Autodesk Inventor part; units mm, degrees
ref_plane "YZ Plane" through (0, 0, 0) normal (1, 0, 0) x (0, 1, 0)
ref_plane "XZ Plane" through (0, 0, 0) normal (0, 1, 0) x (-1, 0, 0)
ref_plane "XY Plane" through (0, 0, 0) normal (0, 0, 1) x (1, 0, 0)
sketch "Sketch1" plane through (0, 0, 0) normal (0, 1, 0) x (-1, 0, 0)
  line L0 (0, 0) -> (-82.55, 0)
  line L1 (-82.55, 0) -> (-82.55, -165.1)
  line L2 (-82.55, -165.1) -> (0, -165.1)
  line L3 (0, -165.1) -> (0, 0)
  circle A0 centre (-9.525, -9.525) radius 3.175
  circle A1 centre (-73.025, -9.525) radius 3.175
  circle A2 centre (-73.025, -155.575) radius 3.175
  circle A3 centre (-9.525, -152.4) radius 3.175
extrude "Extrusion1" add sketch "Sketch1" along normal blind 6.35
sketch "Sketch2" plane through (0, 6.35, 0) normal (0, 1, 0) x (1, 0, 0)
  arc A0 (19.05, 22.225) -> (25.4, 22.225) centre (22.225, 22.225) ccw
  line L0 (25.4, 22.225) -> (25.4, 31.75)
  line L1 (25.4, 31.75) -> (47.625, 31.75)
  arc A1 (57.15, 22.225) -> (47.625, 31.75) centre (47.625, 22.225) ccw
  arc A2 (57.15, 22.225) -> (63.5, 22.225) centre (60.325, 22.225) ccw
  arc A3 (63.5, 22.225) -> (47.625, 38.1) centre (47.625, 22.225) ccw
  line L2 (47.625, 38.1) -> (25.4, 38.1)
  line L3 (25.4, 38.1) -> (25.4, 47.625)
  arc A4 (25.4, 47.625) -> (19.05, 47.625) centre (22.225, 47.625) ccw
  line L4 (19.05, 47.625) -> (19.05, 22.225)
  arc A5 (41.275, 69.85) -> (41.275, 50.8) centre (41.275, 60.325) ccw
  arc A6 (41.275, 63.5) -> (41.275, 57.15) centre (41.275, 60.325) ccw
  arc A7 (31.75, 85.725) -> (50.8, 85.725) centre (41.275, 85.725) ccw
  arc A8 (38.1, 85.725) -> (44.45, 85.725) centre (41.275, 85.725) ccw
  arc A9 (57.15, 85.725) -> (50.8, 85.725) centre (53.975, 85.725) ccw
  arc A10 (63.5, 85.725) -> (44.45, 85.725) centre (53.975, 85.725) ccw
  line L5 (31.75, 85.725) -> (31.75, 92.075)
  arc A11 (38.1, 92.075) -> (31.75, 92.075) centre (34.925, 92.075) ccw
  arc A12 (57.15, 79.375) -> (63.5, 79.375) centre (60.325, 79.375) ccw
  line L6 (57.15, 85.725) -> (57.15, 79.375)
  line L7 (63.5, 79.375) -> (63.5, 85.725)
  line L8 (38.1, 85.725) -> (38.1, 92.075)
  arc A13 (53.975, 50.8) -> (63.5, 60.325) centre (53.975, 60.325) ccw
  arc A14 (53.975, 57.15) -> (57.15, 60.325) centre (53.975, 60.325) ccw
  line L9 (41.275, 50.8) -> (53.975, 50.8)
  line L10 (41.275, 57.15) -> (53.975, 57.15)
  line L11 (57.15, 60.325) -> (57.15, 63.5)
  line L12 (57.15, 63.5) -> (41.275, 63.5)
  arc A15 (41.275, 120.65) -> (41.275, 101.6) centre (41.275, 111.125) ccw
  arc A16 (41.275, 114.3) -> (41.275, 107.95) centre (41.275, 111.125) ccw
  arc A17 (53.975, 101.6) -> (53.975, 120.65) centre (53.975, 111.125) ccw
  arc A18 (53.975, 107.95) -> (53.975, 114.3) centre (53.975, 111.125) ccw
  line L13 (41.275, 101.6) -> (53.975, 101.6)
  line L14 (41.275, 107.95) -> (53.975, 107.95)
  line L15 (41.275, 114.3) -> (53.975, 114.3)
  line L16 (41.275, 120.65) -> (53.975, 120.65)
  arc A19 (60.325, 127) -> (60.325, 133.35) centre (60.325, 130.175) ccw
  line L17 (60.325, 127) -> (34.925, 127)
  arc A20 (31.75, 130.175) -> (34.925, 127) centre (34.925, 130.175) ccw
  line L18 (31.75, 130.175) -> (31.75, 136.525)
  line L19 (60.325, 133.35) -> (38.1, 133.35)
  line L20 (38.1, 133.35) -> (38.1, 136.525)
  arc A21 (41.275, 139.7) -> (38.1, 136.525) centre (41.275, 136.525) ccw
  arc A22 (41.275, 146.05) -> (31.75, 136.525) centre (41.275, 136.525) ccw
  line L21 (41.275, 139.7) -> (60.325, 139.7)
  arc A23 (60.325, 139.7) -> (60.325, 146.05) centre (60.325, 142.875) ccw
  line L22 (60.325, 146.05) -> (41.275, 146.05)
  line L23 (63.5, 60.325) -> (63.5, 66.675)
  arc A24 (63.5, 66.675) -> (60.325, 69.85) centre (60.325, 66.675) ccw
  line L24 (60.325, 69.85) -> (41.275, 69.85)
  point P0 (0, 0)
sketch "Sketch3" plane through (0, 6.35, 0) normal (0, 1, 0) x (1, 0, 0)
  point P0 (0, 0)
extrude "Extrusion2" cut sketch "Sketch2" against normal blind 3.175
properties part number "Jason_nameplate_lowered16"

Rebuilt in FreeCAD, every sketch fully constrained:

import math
import FreeCAD as App
import Part
import Sketcher
from FreeCAD import Vector
Q = App.Units.Quantity


def add_polygon(sketch, points):
    """Adds a closed chain of lines whose ends are joined by coincident constraints."""
    first, n = sketch.GeometryCount, len(points)
    for a, b in zip(points, points[1:] + points[:1]):
        sketch.addGeometry(Part.LineSegment(App.Vector(*a, 0), App.Vector(*b, 0)), False)
    for i in range(n):
        sketch.addConstraint(Sketcher.Constraint("Coincident", first + i, 2, first + (i + 1) % n, 1))

doc = App.newDocument("Part")
params = doc.addObject("Spreadsheet::Sheet", "Params")
for row, (alias, value) in enumerate([
    ("sketch1_diameter", "0.25 in"),
    ("sketch1_height", "6.5 in"),
    ("sketch1_width", "3.25 in"),
    ("pad1_length", "0.25 in"),
    ("sketch2_width", "1 in"),
    ("pocket1_length", "0.125 in"),
], start=1):
    params.set(f"A{row}", alias)
    params.set(f"B{row}", "=" + value)
    params.setAlias(f"B{row}", alias)

body = doc.addObject("PartDesign::Body", "Body")

sketch1 = doc.addObject("Sketcher::SketchObject", "Sketch")
body.addObject(sketch1)
sketch1.AttachmentSupport = (doc.XZ_Plane, [""])
sketch1.MapMode = "FlatFace"
add_polygon(sketch1, [(0, -165.1), (0, 0), (82.5, 0), (82.5, -165.1)])
sketch1.addGeometry(Part.Circle(Vector(73, -155.6, 0), Vector(0, 0, 1), 3.2), False)
sketch1.addGeometry(Part.Circle(Vector(9.5, -152.4, 0), Vector(0, 0, 1), 3.2), False)
sketch1.addGeometry(Part.Circle(Vector(73, -9.5, 0), Vector(0, 0, 1), 3.2), False)
sketch1.addGeometry(Part.Circle(Vector(9.5, -9.5, 0), Vector(0, 0, 1), 3.2), False)
sketch1.addConstraint([
    Sketcher.Constraint("Vertical", 0),
    Sketcher.Constraint("Horizontal", 1),
    Sketcher.Constraint("Vertical", 2),
    Sketcher.Constraint("Horizontal", 3),
    Sketcher.Constraint("Coincident", 0, 2, -1, 1),
    Sketcher.Constraint("Equal", 4, 5),
    Sketcher.Constraint("Equal", 5, 6),
    Sketcher.Constraint("Equal", 6, 7),
    Sketcher.Constraint("Horizontal", 6, 3, 7, 3),
    Sketcher.Constraint("Vertical", 4, 3, 6, 3),
    Sketcher.Constraint("Vertical", 5, 3, 7, 3),
    Sketcher.Constraint("Diameter", 4, Q("0.25 in")),
    Sketcher.Constraint("DistanceY", 0, 1, 0, 2, Q("6.5 in")),
    Sketcher.Constraint("DistanceY", 5, 3, -1, 1, Q("6 in")),
    Sketcher.Constraint("DistanceX", 1, 1, 1, 2, Q("3.25 in")),
    Sketcher.Constraint("DistanceX", 5, 3, 4, 3, Q("2.5 in")),
    Sketcher.Constraint("DistanceY", 4, 3, 6, 3, Q("5.75 in")),
    Sketcher.Constraint("DistanceX", -1, 1, 4, 3, Q("2.875 in")),
    Sketcher.Constraint("DistanceY", 4, 3, -1, 1, Q("6.125 in")),
])
sketch1.setExpression("Constraints[15]", "Params.sketch1_diameter")
sketch1.setExpression("Constraints[16]", "Params.sketch1_height")
sketch1.setExpression("Constraints[18]", "Params.sketch1_width")
pad1 = doc.addObject("PartDesign::Pad", "Pad")
body.addObject(pad1)
pad1.Profile = sketch1
pad1.setExpression("Length", "Params.pad1_length")
pad1.Reversed = True

sketch2 = doc.addObject("Sketcher::SketchObject", "Sketch001")
body.addObject(sketch2)
sketch2.AttachmentSupport = (doc.XZ_Plane, [""])
sketch2.MapMode = "FlatFace"
sketch2.AttachmentOffset = App.Placement(Vector(0, 0, -0.25 * 25.4), App.Rotation())
sketch2.addGeometry([
    Part.LineSegment(Vector(19.1, -47.6, 0), Vector(19.1, -22.2, 0)),
    Part.ArcOfCircle(Part.Circle(Vector(22.2, -22.2, 0), Vector(0, 0, 1), 3.2), math.radians(0), math.radians(180)),
    Part.LineSegment(Vector(25.4, -22.2, 0), Vector(25.4, -31.8, 0)),
    Part.LineSegment(Vector(25.4, -31.8, 0), Vector(47.6, -31.8, 0)),
    Part.ArcOfCircle(Part.Circle(Vector(47.6, -22.2, 0), Vector(0, 0, 1), 9.5), math.radians(-90), math.radians(0)),
    Part.ArcOfCircle(Part.Circle(Vector(60.3, -22.2, 0), Vector(0, 0, 1), 3.2), math.radians(0), math.radians(180)),
    Part.ArcOfCircle(Part.Circle(Vector(47.6, -22.2, 0), Vector(0, 0, 1), 15.9), math.radians(-90), math.radians(0)),
    Part.LineSegment(Vector(47.6, -38.1, 0), Vector(25.4, -38.1, 0)),
    Part.LineSegment(Vector(25.4, -38.1, 0), Vector(25.4, -47.6, 0)),
    Part.ArcOfCircle(Part.Circle(Vector(22.2, -47.6, 0), Vector(0, 0, 1), 3.2), math.radians(180), math.radians(360)),
    Part.LineSegment(Vector(60.3, -69.8, 0), Vector(41.3, -69.8, 0)),
    Part.ArcOfCircle(Part.Circle(Vector(41.3, -60.3, 0), Vector(0, 0, 1), 9.5), math.radians(90), math.radians(270)),
    Part.LineSegment(Vector(41.3, -50.8, 0), Vector(54, -50.8, 0)),
    Part.ArcOfCircle(Part.Circle(Vector(54, -60.3, 0), Vector(0, 0, 1), 9.5), math.radians(0), math.radians(90)),
    Part.LineSegment(Vector(63.5, -60.3, 0), Vector(63.5, -66.7, 0)),
    Part.ArcOfCircle(Part.Circle(Vector(60.3, -66.7, 0), Vector(0, 0, 1), 3.2), math.radians(-90), math.radians(0)),
    Part.ArcOfCircle(Part.Circle(Vector(41.3, -60.3, 0), Vector(0, 0, 1), 3.2), math.radians(90), math.radians(270)),
    Part.LineSegment(Vector(41.3, -63.5, 0), Vector(57.1, -63.5, 0)),
    Part.LineSegment(Vector(57.1, -63.5, 0), Vector(57.1, -60.3, 0)),
    Part.ArcOfCircle(Part.Circle(Vector(54, -60.3, 0), Vector(0, 0, 1), 3.2), math.radians(0), math.radians(90)),
    Part.LineSegment(Vector(54, -57.1, 0), Vector(41.3, -57.1, 0)),
    Part.LineSegment(Vector(31.8, -92.1, 0), Vector(31.8, -85.7, 0)),
    Part.ArcOfCircle(Part.Circle(Vector(41.3, -85.7, 0), Vector(0, 0, 1), 9.5), math.radians(0), math.radians(180)),
    Part.ArcOfCircle(Part.Circle(Vector(54, -85.7, 0), Vector(0, 0, 1), 3.2), math.radians(180), math.radians(360)),
    Part.LineSegment(Vector(57.1, -85.7, 0), Vector(57.1, -79.4, 0)),
    Part.ArcOfCircle(Part.Circle(Vector(60.3, -79.4, 0), Vector(0, 0, 1), 3.2), math.radians(0), math.radians(180)),
    Part.LineSegment(Vector(63.5, -79.4, 0), Vector(63.5, -85.7, 0)),
    Part.ArcOfCircle(Part.Circle(Vector(54, -85.7, 0), Vector(0, 0, 1), 9.5), math.radians(180), math.radians(360)),
    Part.ArcOfCircle(Part.Circle(Vector(41.3, -85.7, 0), Vector(0, 0, 1), 3.2), math.radians(0), math.radians(180)),
    Part.LineSegment(Vector(38.1, -85.7, 0), Vector(38.1, -92.1, 0)),
    Part.ArcOfCircle(Part.Circle(Vector(34.9, -92.1, 0), Vector(0, 0, 1), 3.2), math.radians(180), math.radians(360)),
    Part.LineSegment(Vector(54, -120.7, 0), Vector(41.3, -120.7, 0)),
    Part.ArcOfCircle(Part.Circle(Vector(41.3, -111.1, 0), Vector(0, 0, 1), 9.5), math.radians(90), math.radians(270)),
    Part.LineSegment(Vector(41.3, -101.6, 0), Vector(54, -101.6, 0)),
    Part.ArcOfCircle(Part.Circle(Vector(54, -111.1, 0), Vector(0, 0, 1), 9.5), math.radians(-90), math.radians(90)),
    Part.ArcOfCircle(Part.Circle(Vector(41.3, -111.1, 0), Vector(0, 0, 1), 3.2), math.radians(90), math.radians(270)),
    Part.LineSegment(Vector(41.3, -114.3, 0), Vector(54, -114.3, 0)),
    Part.ArcOfCircle(Part.Circle(Vector(54, -111.1, 0), Vector(0, 0, 1), 3.2), math.radians(-90), math.radians(90)),
    Part.LineSegment(Vector(54, -108, 0), Vector(41.3, -108, 0)),
    Part.LineSegment(Vector(34.9, -127, 0), Vector(60.3, -127, 0)),
    Part.ArcOfCircle(Part.Circle(Vector(60.3, -130.2, 0), Vector(0, 0, 1), 3.2), math.radians(-90), math.radians(90)),
    Part.LineSegment(Vector(60.3, -133.3, 0), Vector(38.1, -133.3, 0)),
    Part.LineSegment(Vector(38.1, -133.3, 0), Vector(38.1, -136.5, 0)),
    Part.ArcOfCircle(Part.Circle(Vector(41.3, -136.5, 0), Vector(0, 0, 1), 3.2), math.radians(180), math.radians(270)),
    Part.LineSegment(Vector(41.3, -139.7, 0), Vector(60.3, -139.7, 0)),
    Part.ArcOfCircle(Part.Circle(Vector(60.3, -142.9, 0), Vector(0, 0, 1), 3.2), math.radians(-90), math.radians(90)),
    Part.LineSegment(Vector(60.3, -146.1, 0), Vector(41.3, -146.1, 0)),
    Part.ArcOfCircle(Part.Circle(Vector(41.3, -136.5, 0), Vector(0, 0, 1), 9.5), math.radians(180), math.radians(270)),
    Part.LineSegment(Vector(31.8, -136.5, 0), Vector(31.8, -130.2, 0)),
    Part.ArcOfCircle(Part.Circle(Vector(34.9, -130.2, 0), Vector(0, 0, 1), 3.2), math.radians(90), math.radians(180)),
], False)
sketch2.addConstraint([
    Sketcher.Constraint("Tangent", 0, 2, 1, 2),
    Sketcher.Constraint("Tangent", 1, 1, 2, 1),
    Sketcher.Constraint("Coincident", 2, 2, 3, 1),
    Sketcher.Constraint("Tangent", 3, 2, 4, 1),
    Sketcher.Constraint("Tangent", 4, 2, 5, 2),
    Sketcher.Constraint("Tangent", 5, 1, 6, 2),
    Sketcher.Constraint("Tangent", 6, 1, 7, 1),
    Sketcher.Constraint("Coincident", 7, 2, 8, 1),
    Sketcher.Constraint("Tangent", 8, 2, 9, 2),
    Sketcher.Constraint("Tangent", 9, 1, 0, 1),
    Sketcher.Constraint("Tangent", 10, 2, 11, 2),
    Sketcher.Constraint("Tangent", 11, 1, 12, 1),
    Sketcher.Constraint("Tangent", 12, 2, 13, 2),
    Sketcher.Constraint("Tangent", 13, 1, 14, 1),
    Sketcher.Constraint("Tangent", 14, 2, 15, 2),
    Sketcher.Constraint("Tangent", 15, 1, 10, 1),
    Sketcher.Constraint("Tangent", 16, 2, 17, 1),
    Sketcher.Constraint("Coincident", 17, 2, 18, 1),
    Sketcher.Constraint("Tangent", 18, 2, 19, 1),
    Sketcher.Constraint("Tangent", 19, 2, 20, 1),
    Sketcher.Constraint("Tangent", 20, 2, 16, 1),
    Sketcher.Constraint("Tangent", 21, 2, 22, 2),
    Sketcher.Constraint("Tangent", 22, 1, 23, 1),
    Sketcher.Constraint("Tangent", 23, 2, 24, 1),
    Sketcher.Constraint("Tangent", 24, 2, 25, 2),
    Sketcher.Constraint("Tangent", 25, 1, 26, 1),
    Sketcher.Constraint("Tangent", 26, 2, 27, 2),
    Sketcher.Constraint("Tangent", 27, 1, 28, 1),
    Sketcher.Constraint("Tangent", 28, 2, 29, 1),
    Sketcher.Constraint("Tangent", 29, 2, 30, 2),
    Sketcher.Constraint("Tangent", 30, 1, 21, 1),
    Sketcher.Constraint("Tangent", 31, 2, 32, 2),
    Sketcher.Constraint("Tangent", 32, 1, 33, 1),
    Sketcher.Constraint("Tangent", 33, 2, 34, 2),
    Sketcher.Constraint("Tangent", 34, 1, 31, 1),
    Sketcher.Constraint("Tangent", 35, 2, 36, 1),
    Sketcher.Constraint("Tangent", 36, 2, 37, 1),
    Sketcher.Constraint("Tangent", 37, 2, 38, 1),
    Sketcher.Constraint("Tangent", 38, 2, 35, 1),
    Sketcher.Constraint("Tangent", 39, 2, 40, 2),
    Sketcher.Constraint("Tangent", 40, 1, 41, 1),
    Sketcher.Constraint("Coincident", 41, 2, 42, 1),
    Sketcher.Constraint("Tangent", 42, 2, 43, 1),
    Sketcher.Constraint("Tangent", 43, 2, 44, 1),
    Sketcher.Constraint("Tangent", 44, 2, 45, 2),
    Sketcher.Constraint("Tangent", 45, 1, 46, 1),
    Sketcher.Constraint("Tangent", 46, 2, 47, 2),
    Sketcher.Constraint("Tangent", 47, 1, 48, 1),
    Sketcher.Constraint("Tangent", 48, 2, 49, 2),
    Sketcher.Constraint("Tangent", 49, 1, 39, 1),
    Sketcher.Constraint("Vertical", 0),
    Sketcher.Constraint("Vertical", 2),
    Sketcher.Constraint("Horizontal", 3),
    Sketcher.Constraint("Horizontal", 7),
    Sketcher.Constraint("Vertical", 8),
    Sketcher.Constraint("Horizontal", 10),
    Sketcher.Constraint("Horizontal", 12),
    Sketcher.Constraint("Vertical", 14),
    Sketcher.Constraint("Horizontal", 17),
    Sketcher.Constraint("Vertical", 18),
    Sketcher.Constraint("Horizontal", 20),
    Sketcher.Constraint("Vertical", 21),
    Sketcher.Constraint("Vertical", 24),
    Sketcher.Constraint("Vertical", 26),
    Sketcher.Constraint("Vertical", 29),
    Sketcher.Constraint("Horizontal", 31),
    Sketcher.Constraint("Horizontal", 33),
    Sketcher.Constraint("Horizontal", 36),
    Sketcher.Constraint("Horizontal", 38),
    Sketcher.Constraint("Horizontal", 39),
    Sketcher.Constraint("Horizontal", 41),
    Sketcher.Constraint("Vertical", 42),
    Sketcher.Constraint("Horizontal", 44),
    Sketcher.Constraint("Horizontal", 46),
    Sketcher.Constraint("Vertical", 48),
    Sketcher.Constraint("Coincident", 6, 3, 4, 3),
    Sketcher.Constraint("Coincident", 16, 3, 11, 3),
    Sketcher.Constraint("Coincident", 19, 3, 13, 3),
    Sketcher.Constraint("Coincident", 27, 3, 23, 3),
    Sketcher.Constraint("Coincident", 28, 3, 22, 3),
    Sketcher.Constraint("Coincident", 35, 3, 32, 3),
    Sketcher.Constraint("Coincident", 47, 3, 43, 3),
    Sketcher.Constraint("Equal", 1, 5),
    Sketcher.Constraint("Equal", 5, 9),
    Sketcher.Constraint("Equal", 4, 11),
    Sketcher.Constraint("Equal", 11, 13),
    Sketcher.Constraint("Equal", 9, 15),
    Sketcher.Constraint("Equal", 15, 16),
    Sketcher.Constraint("Equal", 13, 22),
    Sketcher.Constraint("Equal", 19, 23),
    Sketcher.Constraint("Equal", 23, 25),
    Sketcher.Constraint("Equal", 22, 27),
    Sketcher.Constraint("Equal", 27, 32),
    Sketcher.Constraint("Equal", 30, 35),
    Sketcher.Constraint("Equal", 37, 40),
    Sketcher.Constraint("Equal", 40, 43),
    Sketcher.Constraint("Equal", 43, 45),
    Sketcher.Constraint("Equal", 45, 49),
    Sketcher.Constraint("Horizontal", 1, 3, 4, 3),
    Sketcher.Constraint("Horizontal", 4, 3, 5, 3),
    Sketcher.Constraint("Horizontal", 22, 3, 23, 3),
    Sketcher.Constraint("Vertical", 5, 3, 15, 3),
    Sketcher.Constraint("Vertical", 16, 3, 22, 3),
    Sketcher.Constraint("Vertical", 19, 3, 23, 3),
    Sketcher.Constraint("Vertical", 28, 3, 32, 3),
    Sketcher.Constraint("Vertical", 27, 3, 34, 3),
    Sketcher.Constraint("Vertical", 27, 3, 37, 3),
    Sketcher.Constraint("Vertical", 25, 3, 40, 3),
    Sketcher.Constraint("Vertical", 35, 3, 43, 3),
    Sketcher.Constraint("Vertical", 40, 3, 45, 3),
    Sketcher.Constraint("Equal", 7, 41),
    Sketcher.Constraint("Equal", 39, 0),
    Sketcher.Constraint("Equal", 14, 21),
    Sketcher.Constraint("Equal", 21, 24),
    Sketcher.Constraint("Equal", 18, 42),
    Sketcher.Constraint("DistanceX", 39, 1, 39, 2, Q("1 in")),
    Sketcher.Constraint("DistanceX", -1, 1, 1, 1, Q("1 in")),
    Sketcher.Constraint("DistanceY", 11, 1, -1, 1, Q("2 in")),
    Sketcher.Constraint("DistanceY", 32, 1, -1, 1, Q("4 in")),
    Sketcher.Constraint("DistanceY", 39, 2, -1, 1, Q("5 in")),
    Sketcher.Constraint("DistanceY", 6, 1, -1, 1, Q("1.5 in")),
    Sketcher.Constraint("DistanceY", 22, 3, -1, 1, Q("3.375 in")),
])
sketch2.setExpression("Constraints[115]", "Params.sketch2_width")
pocket1 = doc.addObject("PartDesign::Pocket", "Pocket")
body.addObject(pocket1)
pocket1.Profile = sketch2
pocket1.setExpression("Length", "Params.pocket1_length")
pocket1.Reversed = True

doc.recompute()
